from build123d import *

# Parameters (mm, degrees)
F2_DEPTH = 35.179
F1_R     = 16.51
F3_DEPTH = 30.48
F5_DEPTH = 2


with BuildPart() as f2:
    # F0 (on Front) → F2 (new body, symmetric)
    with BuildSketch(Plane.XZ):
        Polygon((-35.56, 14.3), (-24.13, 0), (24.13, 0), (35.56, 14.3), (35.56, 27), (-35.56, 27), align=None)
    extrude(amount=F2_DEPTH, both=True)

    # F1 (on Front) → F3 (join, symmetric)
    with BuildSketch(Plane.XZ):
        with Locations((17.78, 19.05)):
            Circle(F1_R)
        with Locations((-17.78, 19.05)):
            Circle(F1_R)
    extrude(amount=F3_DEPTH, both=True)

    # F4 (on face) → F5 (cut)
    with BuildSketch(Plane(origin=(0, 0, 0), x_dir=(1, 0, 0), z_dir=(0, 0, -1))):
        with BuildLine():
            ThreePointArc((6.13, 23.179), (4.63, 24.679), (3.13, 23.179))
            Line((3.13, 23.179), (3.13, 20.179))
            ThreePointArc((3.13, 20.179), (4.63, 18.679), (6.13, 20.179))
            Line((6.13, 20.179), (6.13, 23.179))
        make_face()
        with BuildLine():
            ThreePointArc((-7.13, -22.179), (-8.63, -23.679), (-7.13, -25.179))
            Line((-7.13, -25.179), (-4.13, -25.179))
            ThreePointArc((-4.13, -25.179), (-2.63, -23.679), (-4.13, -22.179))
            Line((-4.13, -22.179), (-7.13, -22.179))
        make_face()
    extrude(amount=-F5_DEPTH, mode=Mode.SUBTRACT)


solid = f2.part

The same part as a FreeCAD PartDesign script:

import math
import FreeCAD as App
import Part
import Sketcher
Q = App.Units.Quantity


def add_polygon(sketch, points):
    """Adds a closed chain of lines whose ends are joined by coincident constraints."""
    first, n = sketch.GeometryCount, len(points)
    for a, b in zip(points, points[1:] + points[:1]):
        sketch.addGeometry(Part.LineSegment(App.Vector(*a, 0), App.Vector(*b, 0)), False)
    for i in range(n):
        sketch.addConstraint(Sketcher.Constraint("Coincident", first + i, 2, first + (i + 1) % n, 1))

doc = App.newDocument("Part")
params = doc.addObject("Spreadsheet::Sheet", "Params")
for row, (alias, value) in enumerate([
    ("sketch1_width", "1.9 in"),
    ("sketch1_width2", "2.8 in"),
    ("sketch1_height", "0.5 in"),
    ("pad1_length", "2.77 in"),
    ("sketch2_diameter", "1.3 in"),
    ("pad2_length", "2.4 in"),
    ("pocket1_length", "2 mm"),
], start=1):
    params.set(f"A{row}", alias)
    params.set(f"B{row}", "=" + value)
    params.setAlias(f"B{row}", alias)

body = doc.addObject("PartDesign::Body", "Body")

# Sketch on XZ plane
sketch1 = body.newObject("Sketcher::SketchObject", "Sketch")
sketch1.AttachmentSupport = (doc.getObject("XZ_Plane"), [""])
sketch1.MapMode = "FlatFace"
add_polygon(sketch1, [(-35.56, 14.3), (-24.13, 0), (24.13, 0), (35.56, 14.3), (35.56, 27), (-35.56, 27)])  # lines 0-5
sketch1.addConstraint([
    Sketcher.Constraint("Horizontal", 1),
    Sketcher.Constraint("Vertical", 3),
    Sketcher.Constraint("Horizontal", 4),
    Sketcher.Constraint("Vertical", 5),
    Sketcher.Constraint("Symmetric", 0, 2, 1, 2, -1, 1),
    Sketcher.Constraint("Symmetric", 2, 2, 5, 2, -2),
    Sketcher.Constraint("DistanceX", 1, 1, 1, 2, Q("1.9 in")),
    Sketcher.Constraint("DistanceX", 4, 2, 4, 1, Q("2.8 in")),
    Sketcher.Constraint("DistanceY", 3, 1, 3, 2, Q("0.5 in")),
    Sketcher.Constraint("DistanceY", -1, 1, 2, 2, Q("14.3 mm")),
])
sketch1.setExpression("Constraints[12]", "Params.sketch1_width")
sketch1.setExpression("Constraints[13]", "Params.sketch1_width2")
sketch1.setExpression("Constraints[14]", "Params.sketch1_height")
pad1 = body.newObject("PartDesign::Pad", "Pad")
pad1.Profile = sketch1
pad1.setExpression("Length", "Params.pad1_length")
pad1.Midplane = True

# Sketch on XZ plane
sketch2 = body.newObject("Sketcher::SketchObject", "Sketch001")
sketch2.AttachmentSupport = (doc.getObject("XZ_Plane"), [""])
sketch2.MapMode = "FlatFace"
sketch2.addGeometry([
    Part.Circle(App.Vector(17.78, 19.05, 0), App.Vector(0, 0, 1), 16.51),
    Part.Circle(App.Vector(-17.78, 19.05, 0), App.Vector(0, 0, 1), 16.51),
], False)
sketch2.addConstraint([
    Sketcher.Constraint("Equal", 0, 1),
    Sketcher.Constraint("Symmetric", 0, 3, 1, 3, -2),
    Sketcher.Constraint("Diameter", 0, Q("1.3 in")),
    Sketcher.Constraint("DistanceX", -1, 1, 0, 3, Q("0.7 in")),
    Sketcher.Constraint("DistanceY", -1, 1, 0, 3, Q("0.75 in")),
])
sketch2.setExpression("Constraints[2]", "Params.sketch2_diameter")
pad2 = body.newObject("PartDesign::Pad", "Pad001")
pad2.Profile = sketch2
pad2.setExpression("Length", "Params.pad2_length")
pad2.Midplane = True

# Sketch on XY plane
sketch3 = body.newObject("Sketcher::SketchObject", "Sketch002")
sketch3.AttachmentSupport = (doc.getObject("XY_Plane"), [""])
sketch3.MapMode = "FlatFace"
sketch3.addGeometry([
    Part.ArcOfCircle(Part.Circle(App.Vector(4.63, -23.179, 0), App.Vector(0, 0, 1), 1.5), math.radians(180), math.radians(360)),  # 0
    Part.LineSegment(App.Vector(3.13, -23.179, 0), App.Vector(3.13, -20.179, 0)),  # 1
    Part.ArcOfCircle(Part.Circle(App.Vector(4.63, -20.179, 0), App.Vector(0, 0, 1), 1.5), math.radians(0), math.radians(180)),  # 2
    Part.LineSegment(App.Vector(6.13, -20.179, 0), App.Vector(6.13, -23.179, 0)),  # 3
    Part.ArcOfCircle(Part.Circle(App.Vector(-7.13, 23.679, 0), App.Vector(0, 0, 1), 1.5), math.radians(90), math.radians(270)),  # 4
    Part.LineSegment(App.Vector(-7.13, 25.179, 0), App.Vector(-4.13, 25.179, 0)),  # 5
    Part.ArcOfCircle(Part.Circle(App.Vector(-4.13, 23.679, 0), App.Vector(0, 0, 1), 1.5), math.radians(-90), math.radians(90)),  # 6
    Part.LineSegment(App.Vector(-4.13, 22.179, 0), App.Vector(-7.13, 22.179, 0)),  # 7
], False)
sketch3.addConstraint([
    Sketcher.Constraint("Tangent", 0, 1, 1, 1),
    Sketcher.Constraint("Tangent", 1, 2, 2, 2),
    Sketcher.Constraint("Tangent", 2, 1, 3, 1),
    Sketcher.Constraint("Tangent", 3, 2, 0, 2),
    Sketcher.Constraint("Tangent", 4, 1, 5, 1),
    Sketcher.Constraint("Tangent", 5, 2, 6, 2),
    Sketcher.Constraint("Tangent", 6, 1, 7, 1),
    Sketcher.Constraint("Tangent", 7, 2, 4, 2),
    Sketcher.Constraint("Vertical", 1),
    Sketcher.Constraint("Vertical", 3),
    Sketcher.Constraint("Horizontal", 5),
    Sketcher.Constraint("Horizontal", 7),
    Sketcher.Constraint("Equal", 2, 4),
    Sketcher.Constraint("Equal", 7, 1),
    Sketcher.Constraint("Radius", 0, Q("1.5 mm")),
    Sketcher.Constraint("DistanceX", 5, 1, 5, 2, Q("3 mm")),
    Sketcher.Constraint("DistanceX", -1, 1, 0, 3, Q("4.63 mm")),
    Sketcher.Constraint("DistanceY", 0, 3, -1, 1, Q("23.179 mm")),
    Sketcher.Constraint("DistanceX", 4, 3, -1, 1, Q("7.13 mm")),
    Sketcher.Constraint("DistanceY", -1, 1, 4, 3, Q("23.679 mm")),
])
pocket1 = body.newObject("PartDesign::Pocket", "Pocket")
pocket1.Profile = sketch3
pocket1.setExpression("Length", "Params.pocket1_length")
pocket1.Reversed = True

doc.recompute()
